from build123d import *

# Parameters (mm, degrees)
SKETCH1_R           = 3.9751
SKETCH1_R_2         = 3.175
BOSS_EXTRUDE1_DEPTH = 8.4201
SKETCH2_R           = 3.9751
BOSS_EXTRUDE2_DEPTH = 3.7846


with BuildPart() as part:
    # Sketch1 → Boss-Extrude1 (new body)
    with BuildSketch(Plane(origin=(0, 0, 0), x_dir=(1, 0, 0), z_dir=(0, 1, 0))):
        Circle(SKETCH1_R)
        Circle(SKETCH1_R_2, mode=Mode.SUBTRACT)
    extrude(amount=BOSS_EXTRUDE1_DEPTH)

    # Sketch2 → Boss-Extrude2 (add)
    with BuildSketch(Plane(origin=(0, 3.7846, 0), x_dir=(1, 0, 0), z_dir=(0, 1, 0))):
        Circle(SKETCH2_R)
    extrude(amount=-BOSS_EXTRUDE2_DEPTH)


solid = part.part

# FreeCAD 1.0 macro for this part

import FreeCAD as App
import Part
import Sketcher
Q = App.Units.Quantity

doc = App.newDocument("Part")
body = doc.addObject("PartDesign::Body", "Body")

# Sketch on XZ plane
sketch1 = body.newObject("Sketcher::SketchObject", "Sketch")
sketch1.AttachmentSupport = (doc.getObject("XZ_Plane"), [""])
sketch1.MapMode = "FlatFace"
sketch1.addGeometry([
    Part.Circle(App.Vector(0, 0, 0), App.Vector(0, 0, 1), 4),
    Part.Circle(App.Vector(0, 0, 0), App.Vector(0, 0, 1), 3.2),
], False)
sketch1.addConstraint([
    Sketcher.Constraint("Coincident", 0, 3, -1, 1),
    Sketcher.Constraint("Coincident", 1, 3, -1, 1),
    Sketcher.Constraint("Diameter", 1, Q("0.25 in")),
    Sketcher.Constraint("Diameter", 0, Q("0.313 in")),
])
pad1 = body.newObject("PartDesign::Pad", "Pad")
pad1.Profile = sketch1
pad1.Length = Q("0.3315 in")
pad1.Reversed = True

# Sketch on XZ plane
sketch2 = body.newObject("Sketcher::SketchObject", "Sketch001")
sketch2.AttachmentSupport = (doc.getObject("XZ_Plane"), [""])
sketch2.MapMode = "FlatFace"
sketch2.AttachmentOffset = App.Placement(App.Vector(0, 0, -0.149 * 25.4), App.Rotation())
sketch2.addGeometry(Part.Circle(App.Vector(0, 0, 0), App.Vector(0, 0, 1), 4), False)
sketch2.addConstraint([
    Sketcher.Constraint("Coincident", 0, 3, -1, 1),
    Sketcher.Constraint("Diameter", 0, Q("0.313 in")),
])
pad2 = body.newObject("PartDesign::Pad", "Pad001")
pad2.Profile = sketch2
pad2.Length = Q("0.149 in")

doc.recompute()
